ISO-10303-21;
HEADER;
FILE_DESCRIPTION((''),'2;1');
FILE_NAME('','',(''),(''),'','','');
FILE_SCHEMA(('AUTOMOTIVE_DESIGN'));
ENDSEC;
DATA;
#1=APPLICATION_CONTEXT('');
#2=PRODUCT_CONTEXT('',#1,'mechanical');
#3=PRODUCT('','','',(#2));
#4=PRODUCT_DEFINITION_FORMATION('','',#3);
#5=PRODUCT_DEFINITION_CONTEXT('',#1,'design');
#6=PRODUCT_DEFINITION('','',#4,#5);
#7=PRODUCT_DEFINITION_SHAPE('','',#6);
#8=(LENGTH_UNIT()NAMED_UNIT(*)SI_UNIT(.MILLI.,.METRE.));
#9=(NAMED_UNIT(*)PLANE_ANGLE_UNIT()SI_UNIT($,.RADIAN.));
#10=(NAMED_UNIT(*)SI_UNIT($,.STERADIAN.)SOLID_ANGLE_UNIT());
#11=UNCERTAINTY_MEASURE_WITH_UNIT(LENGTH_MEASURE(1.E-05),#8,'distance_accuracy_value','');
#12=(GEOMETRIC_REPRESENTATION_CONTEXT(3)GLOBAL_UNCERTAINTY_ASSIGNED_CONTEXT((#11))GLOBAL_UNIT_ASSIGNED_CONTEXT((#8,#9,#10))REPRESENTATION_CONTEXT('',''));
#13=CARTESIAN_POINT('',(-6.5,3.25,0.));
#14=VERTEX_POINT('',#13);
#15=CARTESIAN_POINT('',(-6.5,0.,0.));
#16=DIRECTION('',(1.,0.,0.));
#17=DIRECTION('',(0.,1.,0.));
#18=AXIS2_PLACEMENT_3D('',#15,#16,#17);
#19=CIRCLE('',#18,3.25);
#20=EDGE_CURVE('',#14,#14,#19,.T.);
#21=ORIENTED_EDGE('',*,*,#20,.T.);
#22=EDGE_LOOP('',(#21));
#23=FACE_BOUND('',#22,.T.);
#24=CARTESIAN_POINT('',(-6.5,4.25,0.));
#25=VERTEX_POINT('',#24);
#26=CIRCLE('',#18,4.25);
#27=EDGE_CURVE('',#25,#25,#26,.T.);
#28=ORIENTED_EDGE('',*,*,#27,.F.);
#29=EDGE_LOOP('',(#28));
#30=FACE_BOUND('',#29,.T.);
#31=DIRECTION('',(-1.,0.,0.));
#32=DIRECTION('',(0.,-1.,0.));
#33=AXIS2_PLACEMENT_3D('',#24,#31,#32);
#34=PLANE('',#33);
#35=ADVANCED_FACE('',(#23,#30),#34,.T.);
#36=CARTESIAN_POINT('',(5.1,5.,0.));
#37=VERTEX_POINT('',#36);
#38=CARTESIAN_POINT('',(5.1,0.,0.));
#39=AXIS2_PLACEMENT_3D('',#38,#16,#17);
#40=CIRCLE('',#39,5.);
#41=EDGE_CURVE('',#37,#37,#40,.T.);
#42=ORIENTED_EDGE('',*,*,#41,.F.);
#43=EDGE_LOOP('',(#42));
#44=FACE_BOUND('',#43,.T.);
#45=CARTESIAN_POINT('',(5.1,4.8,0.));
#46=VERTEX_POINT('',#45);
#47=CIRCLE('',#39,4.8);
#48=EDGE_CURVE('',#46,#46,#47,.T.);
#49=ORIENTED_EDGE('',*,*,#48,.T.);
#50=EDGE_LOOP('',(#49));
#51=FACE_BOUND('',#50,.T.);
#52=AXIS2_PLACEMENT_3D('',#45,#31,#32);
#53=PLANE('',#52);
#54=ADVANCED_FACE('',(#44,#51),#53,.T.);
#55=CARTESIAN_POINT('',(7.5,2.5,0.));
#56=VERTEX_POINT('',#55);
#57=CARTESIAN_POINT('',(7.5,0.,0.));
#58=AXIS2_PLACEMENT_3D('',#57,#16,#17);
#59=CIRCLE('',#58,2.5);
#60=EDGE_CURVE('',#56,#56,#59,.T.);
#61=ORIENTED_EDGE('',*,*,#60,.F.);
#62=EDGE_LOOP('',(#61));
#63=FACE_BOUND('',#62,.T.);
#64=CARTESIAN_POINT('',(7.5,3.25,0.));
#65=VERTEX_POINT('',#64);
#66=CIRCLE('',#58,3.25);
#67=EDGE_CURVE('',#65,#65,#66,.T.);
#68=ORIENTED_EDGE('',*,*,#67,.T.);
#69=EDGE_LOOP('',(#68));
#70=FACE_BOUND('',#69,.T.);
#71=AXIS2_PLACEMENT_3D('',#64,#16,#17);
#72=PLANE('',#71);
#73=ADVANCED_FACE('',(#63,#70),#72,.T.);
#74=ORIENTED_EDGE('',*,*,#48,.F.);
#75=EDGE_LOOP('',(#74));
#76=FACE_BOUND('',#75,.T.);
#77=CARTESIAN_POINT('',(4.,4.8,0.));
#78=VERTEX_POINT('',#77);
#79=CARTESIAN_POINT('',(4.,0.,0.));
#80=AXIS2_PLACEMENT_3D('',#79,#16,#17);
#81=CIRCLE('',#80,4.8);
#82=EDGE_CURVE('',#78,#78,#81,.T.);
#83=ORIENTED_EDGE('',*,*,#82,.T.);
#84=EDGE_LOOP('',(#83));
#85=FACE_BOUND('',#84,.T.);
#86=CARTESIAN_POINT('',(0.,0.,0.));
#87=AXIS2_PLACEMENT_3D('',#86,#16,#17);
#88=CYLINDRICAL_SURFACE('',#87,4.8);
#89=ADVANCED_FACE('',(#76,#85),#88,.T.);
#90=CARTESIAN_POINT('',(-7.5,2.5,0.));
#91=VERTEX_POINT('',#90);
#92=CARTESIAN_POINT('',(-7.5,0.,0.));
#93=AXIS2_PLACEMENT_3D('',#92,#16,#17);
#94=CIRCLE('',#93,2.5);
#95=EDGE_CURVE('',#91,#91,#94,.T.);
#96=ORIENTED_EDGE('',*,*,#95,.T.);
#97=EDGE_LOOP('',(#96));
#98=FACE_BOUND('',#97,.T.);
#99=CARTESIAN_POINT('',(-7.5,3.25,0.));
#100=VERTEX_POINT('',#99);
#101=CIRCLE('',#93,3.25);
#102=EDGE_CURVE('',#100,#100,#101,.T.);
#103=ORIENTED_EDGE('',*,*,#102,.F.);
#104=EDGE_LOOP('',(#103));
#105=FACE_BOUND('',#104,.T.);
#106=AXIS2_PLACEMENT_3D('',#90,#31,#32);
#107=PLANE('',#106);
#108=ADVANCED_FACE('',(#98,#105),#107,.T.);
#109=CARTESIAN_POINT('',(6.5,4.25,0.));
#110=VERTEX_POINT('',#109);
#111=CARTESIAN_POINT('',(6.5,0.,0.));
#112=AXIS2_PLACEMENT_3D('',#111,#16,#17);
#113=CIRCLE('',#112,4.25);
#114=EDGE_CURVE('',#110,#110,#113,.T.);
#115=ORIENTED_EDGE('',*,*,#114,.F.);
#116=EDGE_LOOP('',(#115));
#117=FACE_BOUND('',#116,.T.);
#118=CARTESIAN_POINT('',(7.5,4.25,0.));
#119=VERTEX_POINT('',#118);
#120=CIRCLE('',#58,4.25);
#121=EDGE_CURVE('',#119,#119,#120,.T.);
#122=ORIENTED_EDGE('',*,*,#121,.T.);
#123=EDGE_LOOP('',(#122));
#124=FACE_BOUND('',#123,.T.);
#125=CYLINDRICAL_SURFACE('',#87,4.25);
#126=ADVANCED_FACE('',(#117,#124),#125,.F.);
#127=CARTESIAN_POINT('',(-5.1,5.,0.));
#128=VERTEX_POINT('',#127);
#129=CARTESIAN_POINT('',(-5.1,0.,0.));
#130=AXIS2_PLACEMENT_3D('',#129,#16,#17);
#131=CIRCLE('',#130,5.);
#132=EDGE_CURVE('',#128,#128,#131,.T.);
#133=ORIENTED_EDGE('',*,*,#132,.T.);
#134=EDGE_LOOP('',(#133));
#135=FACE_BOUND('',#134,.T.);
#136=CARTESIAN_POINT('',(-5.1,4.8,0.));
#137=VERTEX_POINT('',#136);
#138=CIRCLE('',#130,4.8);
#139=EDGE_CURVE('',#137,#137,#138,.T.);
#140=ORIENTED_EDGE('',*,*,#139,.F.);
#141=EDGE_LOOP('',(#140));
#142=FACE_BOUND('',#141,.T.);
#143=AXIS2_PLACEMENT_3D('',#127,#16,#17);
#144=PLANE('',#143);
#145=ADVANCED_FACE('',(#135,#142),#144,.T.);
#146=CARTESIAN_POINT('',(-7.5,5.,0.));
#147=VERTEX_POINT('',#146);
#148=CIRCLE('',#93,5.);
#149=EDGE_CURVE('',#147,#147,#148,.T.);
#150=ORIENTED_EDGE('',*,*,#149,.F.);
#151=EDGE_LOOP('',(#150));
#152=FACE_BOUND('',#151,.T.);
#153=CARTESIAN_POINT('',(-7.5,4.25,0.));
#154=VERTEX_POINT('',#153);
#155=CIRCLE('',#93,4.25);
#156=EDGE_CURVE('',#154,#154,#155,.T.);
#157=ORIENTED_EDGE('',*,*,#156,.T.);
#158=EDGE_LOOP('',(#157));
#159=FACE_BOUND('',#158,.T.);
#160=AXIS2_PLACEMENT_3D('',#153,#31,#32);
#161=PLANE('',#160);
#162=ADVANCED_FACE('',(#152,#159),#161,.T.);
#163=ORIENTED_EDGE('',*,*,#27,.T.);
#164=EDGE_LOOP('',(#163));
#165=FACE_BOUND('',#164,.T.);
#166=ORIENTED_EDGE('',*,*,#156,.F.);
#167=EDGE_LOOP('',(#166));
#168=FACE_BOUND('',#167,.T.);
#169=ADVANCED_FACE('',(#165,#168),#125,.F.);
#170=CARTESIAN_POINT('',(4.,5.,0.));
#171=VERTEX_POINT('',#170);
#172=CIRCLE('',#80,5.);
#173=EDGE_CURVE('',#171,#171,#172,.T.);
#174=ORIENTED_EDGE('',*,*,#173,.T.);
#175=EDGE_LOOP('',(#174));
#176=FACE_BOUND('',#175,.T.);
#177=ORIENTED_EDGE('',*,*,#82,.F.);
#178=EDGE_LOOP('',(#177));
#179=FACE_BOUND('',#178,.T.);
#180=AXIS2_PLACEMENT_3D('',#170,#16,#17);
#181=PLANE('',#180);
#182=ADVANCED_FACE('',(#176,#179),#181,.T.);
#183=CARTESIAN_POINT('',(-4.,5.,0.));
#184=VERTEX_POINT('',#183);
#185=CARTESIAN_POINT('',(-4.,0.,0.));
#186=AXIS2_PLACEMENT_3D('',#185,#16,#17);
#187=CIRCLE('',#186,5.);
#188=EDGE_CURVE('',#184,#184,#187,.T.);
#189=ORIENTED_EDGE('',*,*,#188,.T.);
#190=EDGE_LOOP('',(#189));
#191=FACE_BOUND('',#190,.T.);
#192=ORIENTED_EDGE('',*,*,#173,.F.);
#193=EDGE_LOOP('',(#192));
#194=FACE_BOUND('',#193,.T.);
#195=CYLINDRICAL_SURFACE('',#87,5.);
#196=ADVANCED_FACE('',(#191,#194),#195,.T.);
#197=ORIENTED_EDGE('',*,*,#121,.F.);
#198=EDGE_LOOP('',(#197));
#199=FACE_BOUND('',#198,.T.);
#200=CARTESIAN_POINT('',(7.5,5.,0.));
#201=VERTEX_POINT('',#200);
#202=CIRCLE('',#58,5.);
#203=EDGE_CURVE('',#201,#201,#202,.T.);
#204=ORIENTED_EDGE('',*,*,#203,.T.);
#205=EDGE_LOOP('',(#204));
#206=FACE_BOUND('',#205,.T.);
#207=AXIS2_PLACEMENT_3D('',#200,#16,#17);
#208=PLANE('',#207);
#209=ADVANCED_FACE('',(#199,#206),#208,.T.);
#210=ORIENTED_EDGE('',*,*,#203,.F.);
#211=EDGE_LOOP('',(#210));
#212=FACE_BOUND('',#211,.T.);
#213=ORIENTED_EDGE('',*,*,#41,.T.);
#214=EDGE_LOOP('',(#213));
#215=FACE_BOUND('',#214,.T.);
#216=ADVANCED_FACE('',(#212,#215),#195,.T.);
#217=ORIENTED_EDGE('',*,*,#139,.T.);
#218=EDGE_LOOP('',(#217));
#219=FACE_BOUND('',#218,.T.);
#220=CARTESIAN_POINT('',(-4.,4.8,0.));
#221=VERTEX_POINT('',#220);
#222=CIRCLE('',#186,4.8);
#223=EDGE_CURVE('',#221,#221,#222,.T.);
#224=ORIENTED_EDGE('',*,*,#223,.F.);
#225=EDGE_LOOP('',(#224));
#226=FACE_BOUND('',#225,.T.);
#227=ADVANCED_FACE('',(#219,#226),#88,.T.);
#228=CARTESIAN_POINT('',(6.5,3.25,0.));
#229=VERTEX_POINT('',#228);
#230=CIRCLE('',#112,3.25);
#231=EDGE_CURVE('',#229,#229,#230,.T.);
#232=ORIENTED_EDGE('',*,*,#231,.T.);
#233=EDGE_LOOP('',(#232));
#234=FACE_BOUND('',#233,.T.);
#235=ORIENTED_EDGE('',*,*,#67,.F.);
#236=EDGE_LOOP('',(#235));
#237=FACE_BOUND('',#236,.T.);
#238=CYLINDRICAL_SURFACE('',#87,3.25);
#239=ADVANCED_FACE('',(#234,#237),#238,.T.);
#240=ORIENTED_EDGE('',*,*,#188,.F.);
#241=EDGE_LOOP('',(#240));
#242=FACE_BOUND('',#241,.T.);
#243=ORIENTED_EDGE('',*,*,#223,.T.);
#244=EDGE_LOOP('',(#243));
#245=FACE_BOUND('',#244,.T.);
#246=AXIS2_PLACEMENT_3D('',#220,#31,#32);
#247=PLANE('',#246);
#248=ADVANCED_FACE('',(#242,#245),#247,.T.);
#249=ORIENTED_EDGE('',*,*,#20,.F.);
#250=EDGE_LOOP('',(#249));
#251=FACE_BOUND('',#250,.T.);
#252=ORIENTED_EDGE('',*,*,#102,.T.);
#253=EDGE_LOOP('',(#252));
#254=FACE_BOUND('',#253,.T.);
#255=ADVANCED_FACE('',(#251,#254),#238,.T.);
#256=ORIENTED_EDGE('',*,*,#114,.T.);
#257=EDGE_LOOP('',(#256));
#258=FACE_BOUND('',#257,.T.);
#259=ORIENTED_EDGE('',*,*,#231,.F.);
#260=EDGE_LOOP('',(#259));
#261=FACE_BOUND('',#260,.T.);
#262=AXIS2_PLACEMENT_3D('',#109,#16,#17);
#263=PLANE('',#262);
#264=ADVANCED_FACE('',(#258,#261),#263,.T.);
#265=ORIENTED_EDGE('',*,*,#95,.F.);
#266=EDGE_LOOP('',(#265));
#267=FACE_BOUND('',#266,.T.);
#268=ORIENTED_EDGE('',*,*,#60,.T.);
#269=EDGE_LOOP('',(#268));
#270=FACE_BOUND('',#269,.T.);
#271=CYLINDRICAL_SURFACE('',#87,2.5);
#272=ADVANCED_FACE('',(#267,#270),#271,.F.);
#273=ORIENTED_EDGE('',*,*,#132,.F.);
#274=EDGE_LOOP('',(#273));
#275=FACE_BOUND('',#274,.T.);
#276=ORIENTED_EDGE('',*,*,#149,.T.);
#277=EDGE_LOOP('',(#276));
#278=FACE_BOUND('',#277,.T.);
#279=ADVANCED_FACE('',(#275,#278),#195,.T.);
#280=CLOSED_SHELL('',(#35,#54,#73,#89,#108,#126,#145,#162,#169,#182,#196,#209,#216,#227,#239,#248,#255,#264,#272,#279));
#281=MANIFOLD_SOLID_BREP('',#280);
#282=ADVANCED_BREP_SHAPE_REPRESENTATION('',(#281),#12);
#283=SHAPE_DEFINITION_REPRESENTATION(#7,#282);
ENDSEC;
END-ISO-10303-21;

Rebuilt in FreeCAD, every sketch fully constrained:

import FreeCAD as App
import Part
import Sketcher

doc = App.newDocument("Part")
body = doc.addObject("PartDesign::Body", "Body")

sketch1 = doc.addObject("Sketcher::SketchObject", "Sketch")
body.addObject(sketch1)
sketch1.AttachmentSupport = (doc.XY_Plane, [""])
sketch1.MapMode = "FlatFace"
sketch1.addGeometry([
    Part.LineSegment(App.Vector(-5.1, 5, 0), App.Vector(-7.5, 5, 0)),
    Part.LineSegment(App.Vector(-7.5, 5, 0), App.Vector(-7.5, 4.25, 0)),
    Part.LineSegment(App.Vector(-7.5, 4.25, 0), App.Vector(-6.5, 4.25, 0)),
    Part.LineSegment(App.Vector(-6.5, 4.25, 0), App.Vector(-6.5, 3.25, 0)),
    Part.LineSegment(App.Vector(-6.5, 3.25, 0), App.Vector(-7.5, 3.25, 0)),
    Part.LineSegment(App.Vector(-7.5, 3.25, 0), App.Vector(-7.5, 2.5, 0)),
    Part.LineSegment(App.Vector(-7.5, 2.5, 0), App.Vector(7.5, 2.5, 0)),
    Part.LineSegment(App.Vector(7.5, 2.5, 0), App.Vector(7.5, 3.25, 0)),
    Part.LineSegment(App.Vector(7.5, 3.25, 0), App.Vector(6.5, 3.25, 0)),
    Part.LineSegment(App.Vector(6.5, 3.25, 0), App.Vector(6.5, 4.25, 0)),
    Part.LineSegment(App.Vector(6.5, 4.25, 0), App.Vector(7.5, 4.25, 0)),
    Part.LineSegment(App.Vector(7.5, 4.25, 0), App.Vector(7.5, 5, 0)),
    Part.LineSegment(App.Vector(7.5, 5, 0), App.Vector(5.1, 5, 0)),
    Part.LineSegment(App.Vector(5.1, 5, 0), App.Vector(5.1, 4.8, 0)),
    Part.LineSegment(App.Vector(5.1, 4.8, 0), App.Vector(4, 4.8, 0)),
    Part.LineSegment(App.Vector(4, 4.8, 0), App.Vector(4, 5, 0)),
    Part.LineSegment(App.Vector(4, 5, 0), App.Vector(-4, 5, 0)),
    Part.LineSegment(App.Vector(-4, 5, 0), App.Vector(-4, 4.8, 0)),
    Part.LineSegment(App.Vector(-4, 4.8, 0), App.Vector(-5.1, 4.8, 0)),
    Part.LineSegment(App.Vector(-5.1, 4.8, 0), App.Vector(-5.1, 5, 0)),
], False)
sketch1.addConstraint([
    Sketcher.Constraint("Coincident", 0, 2, 1, 1),
    Sketcher.Constraint("Coincident", 1, 2, 2, 1),
    Sketcher.Constraint("Coincident", 2, 2, 3, 1),
    Sketcher.Constraint("Coincident", 3, 2, 4, 1),
    Sketcher.Constraint("Coincident", 4, 2, 5, 1),
    Sketcher.Constraint("Coincident", 5, 2, 6, 1),
    Sketcher.Constraint("Coincident", 6, 2, 7, 1),
    Sketcher.Constraint("Coincident", 7, 2, 8, 1),
    Sketcher.Constraint("Coincident", 8, 2, 9, 1),
    Sketcher.Constraint("Coincident", 9, 2, 10, 1),
    Sketcher.Constraint("Coincident", 10, 2, 11, 1),
    Sketcher.Constraint("Coincident", 11, 2, 12, 1),
    Sketcher.Constraint("Coincident", 12, 2, 13, 1),
    Sketcher.Constraint("Coincident", 13, 2, 14, 1),
    Sketcher.Constraint("Coincident", 14, 2, 15, 1),
    Sketcher.Constraint("Coincident", 15, 2, 16, 1),
    Sketcher.Constraint("Coincident", 16, 2, 17, 1),
    Sketcher.Constraint("Coincident", 17, 2, 18, 1),
    Sketcher.Constraint("Coincident", 18, 2, 19, 1),
    Sketcher.Constraint("Coincident", 19, 2, 0, 1),
    Sketcher.Constraint("Horizontal", 0),
    Sketcher.Constraint("Vertical", 1),
    Sketcher.Constraint("Horizontal", 2),
    Sketcher.Constraint("Vertical", 3),
    Sketcher.Constraint("Horizontal", 4),
    Sketcher.Constraint("Vertical", 5),
    Sketcher.Constraint("Horizontal", 6),
    Sketcher.Constraint("Vertical", 7),
    Sketcher.Constraint("Horizontal", 8),
    Sketcher.Constraint("Vertical", 9),
    Sketcher.Constraint("Horizontal", 10),
    Sketcher.Constraint("Vertical", 11),
    Sketcher.Constraint("Horizontal", 12),
    Sketcher.Constraint("Vertical", 13),
    Sketcher.Constraint("Horizontal", 14),
    Sketcher.Constraint("Vertical", 15),
    Sketcher.Constraint("Horizontal", 16),
    Sketcher.Constraint("Vertical", 17),
    Sketcher.Constraint("Horizontal", 18),
    Sketcher.Constraint("Vertical", 19),
    Sketcher.Constraint("Symmetric", 4, 2, 7, 2, -2),
    Sketcher.Constraint("Symmetric", 2, 2, 9, 2, -2),
    Sketcher.Constraint("Symmetric", 0, 2, 11, 2, -2),
    Sketcher.Constraint("Symmetric", 14, 2, 17, 2, -2),
    Sketcher.Constraint("Horizontal", 12, 2, 15, 2),
    Sketcher.Constraint("Vertical", 1, 2, 4, 2),
    Sketcher.Constraint("Equal", 0, 12),
    Sketcher.Constraint("Equal", 10, 3),
    Sketcher.Constraint("Equal", 1, 5),
    Sketcher.Constraint("DistanceX", 2, 1, 2, 2, 1.0),
    Sketcher.Constraint("DistanceX", 6, 1, 6, 2, 15.0),
    Sketcher.Constraint("DistanceX", 16, 2, 16, 1, 8.0),
    Sketcher.Constraint("DistanceX", 0, 2, 0, 1, 2.4),
    Sketcher.Constraint("DistanceY", 13, 2, 13, 1, 0.2),
    Sketcher.Constraint("DistanceY", -1, 1, 0, 2, 5.0),
    Sketcher.Constraint("DistanceY", 1, 2, 1, 1, 0.75),
])
revolution = doc.addObject("PartDesign::Revolution", "Revolution")
body.addObject(revolution)
revolution.Profile = sketch1
revolution.ReferenceAxis = (sketch1, ["H_Axis"])
revolution.Angle = 360

doc.recompute()
